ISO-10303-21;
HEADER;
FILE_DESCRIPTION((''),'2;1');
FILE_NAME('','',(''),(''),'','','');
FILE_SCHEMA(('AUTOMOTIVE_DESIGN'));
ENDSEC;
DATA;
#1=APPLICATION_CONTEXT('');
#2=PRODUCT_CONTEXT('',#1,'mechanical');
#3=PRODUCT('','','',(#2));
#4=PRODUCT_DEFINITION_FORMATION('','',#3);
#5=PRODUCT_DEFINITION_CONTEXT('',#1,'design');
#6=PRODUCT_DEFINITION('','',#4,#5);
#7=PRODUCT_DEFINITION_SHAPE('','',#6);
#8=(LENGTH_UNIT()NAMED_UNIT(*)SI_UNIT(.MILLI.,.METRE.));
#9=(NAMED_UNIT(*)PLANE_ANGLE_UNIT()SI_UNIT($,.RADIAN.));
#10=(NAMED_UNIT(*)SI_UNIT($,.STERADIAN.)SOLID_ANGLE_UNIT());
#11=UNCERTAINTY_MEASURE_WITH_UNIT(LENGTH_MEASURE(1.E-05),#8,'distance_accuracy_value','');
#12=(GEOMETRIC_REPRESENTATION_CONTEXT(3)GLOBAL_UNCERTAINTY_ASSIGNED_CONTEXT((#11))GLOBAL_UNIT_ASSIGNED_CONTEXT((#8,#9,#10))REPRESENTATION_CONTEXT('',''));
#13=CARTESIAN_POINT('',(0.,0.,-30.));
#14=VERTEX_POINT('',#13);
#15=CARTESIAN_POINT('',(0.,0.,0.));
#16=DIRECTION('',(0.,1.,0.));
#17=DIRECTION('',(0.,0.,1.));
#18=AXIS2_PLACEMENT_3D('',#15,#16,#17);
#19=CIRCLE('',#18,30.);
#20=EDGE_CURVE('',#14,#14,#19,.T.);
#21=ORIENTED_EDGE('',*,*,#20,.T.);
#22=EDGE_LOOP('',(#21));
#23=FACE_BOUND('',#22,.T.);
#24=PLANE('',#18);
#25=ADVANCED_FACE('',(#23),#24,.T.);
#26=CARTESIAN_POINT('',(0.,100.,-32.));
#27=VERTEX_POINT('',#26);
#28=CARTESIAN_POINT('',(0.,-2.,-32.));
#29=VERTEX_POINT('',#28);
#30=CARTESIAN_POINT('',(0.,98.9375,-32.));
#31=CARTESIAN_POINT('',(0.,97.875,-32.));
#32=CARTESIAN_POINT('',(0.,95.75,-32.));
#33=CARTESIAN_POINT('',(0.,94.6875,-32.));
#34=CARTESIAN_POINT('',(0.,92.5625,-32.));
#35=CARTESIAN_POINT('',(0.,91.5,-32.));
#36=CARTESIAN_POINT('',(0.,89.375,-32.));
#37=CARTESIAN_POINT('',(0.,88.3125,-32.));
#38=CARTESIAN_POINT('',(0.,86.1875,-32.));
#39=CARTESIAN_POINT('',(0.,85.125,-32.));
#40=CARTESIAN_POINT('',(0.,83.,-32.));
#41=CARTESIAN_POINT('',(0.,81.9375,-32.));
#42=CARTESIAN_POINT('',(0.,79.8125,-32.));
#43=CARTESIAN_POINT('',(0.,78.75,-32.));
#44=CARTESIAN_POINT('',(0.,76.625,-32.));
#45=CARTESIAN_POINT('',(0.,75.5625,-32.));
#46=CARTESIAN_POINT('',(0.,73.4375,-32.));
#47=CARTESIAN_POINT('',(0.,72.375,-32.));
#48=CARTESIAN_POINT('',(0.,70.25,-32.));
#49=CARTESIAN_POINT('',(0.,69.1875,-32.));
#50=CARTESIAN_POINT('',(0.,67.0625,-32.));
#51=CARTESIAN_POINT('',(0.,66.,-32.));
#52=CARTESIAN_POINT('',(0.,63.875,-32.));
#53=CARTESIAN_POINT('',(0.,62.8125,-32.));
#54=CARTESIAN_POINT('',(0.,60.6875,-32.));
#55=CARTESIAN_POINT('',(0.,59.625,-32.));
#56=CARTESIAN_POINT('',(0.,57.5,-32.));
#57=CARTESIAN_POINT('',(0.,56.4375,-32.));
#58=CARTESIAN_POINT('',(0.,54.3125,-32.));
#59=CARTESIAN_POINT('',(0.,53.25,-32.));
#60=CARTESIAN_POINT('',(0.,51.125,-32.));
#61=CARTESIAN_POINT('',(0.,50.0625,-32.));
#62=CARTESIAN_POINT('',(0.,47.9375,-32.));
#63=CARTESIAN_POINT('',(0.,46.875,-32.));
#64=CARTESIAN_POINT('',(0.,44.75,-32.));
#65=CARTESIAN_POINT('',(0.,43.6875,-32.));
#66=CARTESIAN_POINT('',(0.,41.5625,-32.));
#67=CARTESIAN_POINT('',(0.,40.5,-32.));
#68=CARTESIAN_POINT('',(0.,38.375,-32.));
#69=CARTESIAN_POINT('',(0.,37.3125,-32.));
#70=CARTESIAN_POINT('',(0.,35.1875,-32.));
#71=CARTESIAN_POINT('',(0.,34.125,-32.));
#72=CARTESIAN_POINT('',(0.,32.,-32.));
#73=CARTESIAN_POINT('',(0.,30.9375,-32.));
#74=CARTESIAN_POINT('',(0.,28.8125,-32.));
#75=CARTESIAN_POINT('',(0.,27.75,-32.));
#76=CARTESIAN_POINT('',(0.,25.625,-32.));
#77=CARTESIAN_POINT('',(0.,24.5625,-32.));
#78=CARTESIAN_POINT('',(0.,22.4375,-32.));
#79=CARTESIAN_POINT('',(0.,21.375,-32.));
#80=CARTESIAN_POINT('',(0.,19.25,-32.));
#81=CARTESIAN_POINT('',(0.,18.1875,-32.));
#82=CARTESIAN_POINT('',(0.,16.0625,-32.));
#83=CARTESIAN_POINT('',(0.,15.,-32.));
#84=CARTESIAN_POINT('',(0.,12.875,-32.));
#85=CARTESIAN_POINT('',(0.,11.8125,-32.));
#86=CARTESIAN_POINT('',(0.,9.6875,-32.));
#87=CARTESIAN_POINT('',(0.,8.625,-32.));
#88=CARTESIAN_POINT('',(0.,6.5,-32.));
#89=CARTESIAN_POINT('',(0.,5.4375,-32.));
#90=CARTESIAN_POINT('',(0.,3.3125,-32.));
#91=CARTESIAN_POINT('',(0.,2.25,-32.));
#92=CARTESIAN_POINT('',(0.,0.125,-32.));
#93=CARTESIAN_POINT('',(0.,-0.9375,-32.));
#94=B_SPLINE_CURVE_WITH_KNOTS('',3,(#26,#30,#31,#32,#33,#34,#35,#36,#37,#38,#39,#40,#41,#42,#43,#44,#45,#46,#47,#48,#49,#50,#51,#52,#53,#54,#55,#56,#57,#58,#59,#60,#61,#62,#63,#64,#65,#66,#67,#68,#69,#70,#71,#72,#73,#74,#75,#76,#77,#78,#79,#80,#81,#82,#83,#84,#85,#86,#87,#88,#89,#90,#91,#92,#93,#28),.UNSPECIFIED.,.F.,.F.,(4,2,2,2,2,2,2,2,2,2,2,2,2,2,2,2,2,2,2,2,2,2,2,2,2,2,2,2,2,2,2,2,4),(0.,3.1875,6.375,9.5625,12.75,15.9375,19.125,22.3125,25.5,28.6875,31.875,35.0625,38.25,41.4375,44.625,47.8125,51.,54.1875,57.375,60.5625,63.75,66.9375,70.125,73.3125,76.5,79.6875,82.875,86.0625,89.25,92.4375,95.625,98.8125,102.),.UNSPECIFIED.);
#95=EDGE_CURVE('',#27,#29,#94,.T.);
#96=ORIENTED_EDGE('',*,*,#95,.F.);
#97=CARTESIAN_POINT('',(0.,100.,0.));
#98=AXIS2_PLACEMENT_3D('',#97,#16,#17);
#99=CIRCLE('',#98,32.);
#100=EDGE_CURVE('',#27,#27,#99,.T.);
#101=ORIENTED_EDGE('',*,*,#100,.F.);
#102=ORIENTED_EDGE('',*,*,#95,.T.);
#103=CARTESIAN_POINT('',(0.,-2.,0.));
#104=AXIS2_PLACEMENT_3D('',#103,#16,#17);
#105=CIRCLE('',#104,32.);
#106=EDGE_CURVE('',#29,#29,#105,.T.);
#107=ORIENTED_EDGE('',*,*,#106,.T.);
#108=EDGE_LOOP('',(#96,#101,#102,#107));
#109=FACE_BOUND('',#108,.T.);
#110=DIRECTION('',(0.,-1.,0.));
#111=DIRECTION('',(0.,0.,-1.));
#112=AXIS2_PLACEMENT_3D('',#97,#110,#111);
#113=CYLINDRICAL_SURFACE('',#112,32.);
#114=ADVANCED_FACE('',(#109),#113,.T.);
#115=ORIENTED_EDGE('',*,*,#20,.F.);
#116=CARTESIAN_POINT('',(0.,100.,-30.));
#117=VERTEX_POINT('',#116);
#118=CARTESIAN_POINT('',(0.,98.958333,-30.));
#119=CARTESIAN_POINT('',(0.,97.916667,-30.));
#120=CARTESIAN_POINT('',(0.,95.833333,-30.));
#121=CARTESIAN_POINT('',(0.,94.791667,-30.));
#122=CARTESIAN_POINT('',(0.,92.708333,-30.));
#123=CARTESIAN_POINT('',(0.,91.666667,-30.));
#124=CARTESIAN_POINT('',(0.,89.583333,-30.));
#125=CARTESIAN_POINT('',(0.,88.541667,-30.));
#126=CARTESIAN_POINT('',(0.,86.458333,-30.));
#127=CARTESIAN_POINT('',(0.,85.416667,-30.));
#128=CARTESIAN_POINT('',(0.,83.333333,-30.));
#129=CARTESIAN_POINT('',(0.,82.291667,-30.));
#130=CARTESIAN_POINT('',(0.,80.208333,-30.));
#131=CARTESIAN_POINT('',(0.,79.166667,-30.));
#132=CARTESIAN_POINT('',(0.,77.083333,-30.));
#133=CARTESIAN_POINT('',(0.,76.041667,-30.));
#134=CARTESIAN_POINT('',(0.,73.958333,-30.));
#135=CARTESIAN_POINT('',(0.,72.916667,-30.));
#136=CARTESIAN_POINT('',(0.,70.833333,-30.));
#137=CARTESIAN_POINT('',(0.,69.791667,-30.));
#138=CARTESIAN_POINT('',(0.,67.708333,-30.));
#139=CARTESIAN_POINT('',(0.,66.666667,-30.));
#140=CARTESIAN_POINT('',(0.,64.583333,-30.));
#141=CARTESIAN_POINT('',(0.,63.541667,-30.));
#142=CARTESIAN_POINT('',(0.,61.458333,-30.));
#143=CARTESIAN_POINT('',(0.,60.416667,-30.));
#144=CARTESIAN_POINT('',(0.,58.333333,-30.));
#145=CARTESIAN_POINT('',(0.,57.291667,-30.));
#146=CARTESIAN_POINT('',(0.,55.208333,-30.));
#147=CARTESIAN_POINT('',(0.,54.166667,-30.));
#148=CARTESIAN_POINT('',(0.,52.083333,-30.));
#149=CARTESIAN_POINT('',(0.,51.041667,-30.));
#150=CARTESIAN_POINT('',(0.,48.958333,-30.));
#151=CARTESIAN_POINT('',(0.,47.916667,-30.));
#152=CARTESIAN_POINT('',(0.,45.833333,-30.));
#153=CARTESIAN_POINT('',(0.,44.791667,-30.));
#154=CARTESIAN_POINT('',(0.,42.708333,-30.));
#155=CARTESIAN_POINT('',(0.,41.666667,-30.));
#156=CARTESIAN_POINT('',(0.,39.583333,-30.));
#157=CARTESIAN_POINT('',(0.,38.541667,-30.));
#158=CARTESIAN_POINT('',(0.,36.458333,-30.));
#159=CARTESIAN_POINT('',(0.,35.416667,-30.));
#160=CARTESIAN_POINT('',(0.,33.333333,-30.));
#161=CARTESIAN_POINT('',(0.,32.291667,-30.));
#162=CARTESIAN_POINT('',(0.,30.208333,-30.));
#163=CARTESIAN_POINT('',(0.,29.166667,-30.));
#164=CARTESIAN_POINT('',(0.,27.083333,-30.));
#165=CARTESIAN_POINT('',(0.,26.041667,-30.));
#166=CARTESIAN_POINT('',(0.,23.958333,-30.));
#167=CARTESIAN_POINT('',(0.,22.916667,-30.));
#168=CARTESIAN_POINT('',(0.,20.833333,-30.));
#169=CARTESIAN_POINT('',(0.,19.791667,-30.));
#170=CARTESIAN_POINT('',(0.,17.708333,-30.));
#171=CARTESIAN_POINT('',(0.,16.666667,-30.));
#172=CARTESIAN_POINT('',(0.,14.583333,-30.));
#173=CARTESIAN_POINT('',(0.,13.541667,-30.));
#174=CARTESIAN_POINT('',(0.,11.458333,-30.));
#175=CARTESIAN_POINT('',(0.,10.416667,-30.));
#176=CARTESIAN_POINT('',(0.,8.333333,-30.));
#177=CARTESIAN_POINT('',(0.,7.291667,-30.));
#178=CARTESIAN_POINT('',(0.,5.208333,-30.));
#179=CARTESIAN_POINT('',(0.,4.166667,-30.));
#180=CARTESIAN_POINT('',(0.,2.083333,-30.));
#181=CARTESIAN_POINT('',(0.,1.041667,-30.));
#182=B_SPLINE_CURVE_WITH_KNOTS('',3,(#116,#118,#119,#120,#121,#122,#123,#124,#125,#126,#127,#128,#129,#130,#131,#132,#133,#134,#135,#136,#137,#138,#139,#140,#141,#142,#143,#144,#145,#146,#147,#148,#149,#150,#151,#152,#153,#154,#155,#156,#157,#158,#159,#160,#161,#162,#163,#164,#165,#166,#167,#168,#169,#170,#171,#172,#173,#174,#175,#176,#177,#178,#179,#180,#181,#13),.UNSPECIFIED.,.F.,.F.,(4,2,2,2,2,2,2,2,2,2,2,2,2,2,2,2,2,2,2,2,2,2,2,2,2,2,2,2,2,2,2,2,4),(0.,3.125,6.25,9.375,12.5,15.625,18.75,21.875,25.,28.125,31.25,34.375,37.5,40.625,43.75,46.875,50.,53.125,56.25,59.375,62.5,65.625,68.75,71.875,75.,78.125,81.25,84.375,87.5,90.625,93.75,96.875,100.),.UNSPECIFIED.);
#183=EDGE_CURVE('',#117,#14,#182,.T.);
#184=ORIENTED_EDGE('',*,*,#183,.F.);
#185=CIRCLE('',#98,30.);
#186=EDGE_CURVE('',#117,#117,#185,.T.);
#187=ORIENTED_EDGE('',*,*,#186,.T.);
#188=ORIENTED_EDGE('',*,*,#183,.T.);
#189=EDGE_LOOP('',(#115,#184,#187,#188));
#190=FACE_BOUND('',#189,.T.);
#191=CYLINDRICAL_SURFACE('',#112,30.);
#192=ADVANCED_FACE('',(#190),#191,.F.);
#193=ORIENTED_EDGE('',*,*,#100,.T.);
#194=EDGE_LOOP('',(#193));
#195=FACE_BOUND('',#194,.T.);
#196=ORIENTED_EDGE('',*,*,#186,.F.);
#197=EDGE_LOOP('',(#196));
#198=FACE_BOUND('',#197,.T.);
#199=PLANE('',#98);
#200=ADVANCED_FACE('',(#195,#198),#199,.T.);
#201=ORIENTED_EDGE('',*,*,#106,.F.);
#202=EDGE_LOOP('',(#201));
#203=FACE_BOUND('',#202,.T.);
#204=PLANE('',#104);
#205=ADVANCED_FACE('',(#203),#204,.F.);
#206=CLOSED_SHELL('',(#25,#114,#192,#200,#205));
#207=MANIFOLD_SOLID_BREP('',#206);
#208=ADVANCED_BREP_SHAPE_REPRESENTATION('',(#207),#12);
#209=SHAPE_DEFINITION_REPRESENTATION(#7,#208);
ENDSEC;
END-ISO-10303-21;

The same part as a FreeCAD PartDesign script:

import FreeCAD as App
import Part
import Sketcher

V = App.Vector
Q = App.Units.Quantity


def faces_at(feature, points):
    """Names of the faces that lie closest to the given points."""
    faces = feature.Shape.Faces
    near = lambda p: min(range(len(faces)), key=lambda i: faces[i].distToShape(Part.Vertex(*p))[0])
    return sorted({f"Face{near(p) + 1}" for p in points})

doc = App.newDocument("Part")
body = doc.addObject("PartDesign::Body", "Body")

sketch1 = body.newObject("Sketcher::SketchObject", "Sketch")
sketch1.AttachmentSupport = (doc.getObject("XZ_Plane"), [""])
sketch1.MapMode = "FlatFace"
sketch1.addGeometry(Part.Circle(V(0, 0, 0), V(0, 0, 1), 30), False)
sketch1.addConstraint([
    Sketcher.Constraint("Coincident", 0, 3, -1, 1),
    Sketcher.Constraint("Diameter", 0, Q("60 mm")),
])
pad1 = body.newObject("PartDesign::Pad", "Pad")
pad1.Profile = sketch1
pad1.Length = 100
pad1.Reversed = True
doc.recompute()

thickness = body.newObject("PartDesign::Thickness", "Thickness")
thickness.Base = (pad1, faces_at(pad1, [(0, 100, 0)]))
thickness.Value = 2
thickness.Reversed = False
thickness.Join = "Intersection"

doc.recompute()
